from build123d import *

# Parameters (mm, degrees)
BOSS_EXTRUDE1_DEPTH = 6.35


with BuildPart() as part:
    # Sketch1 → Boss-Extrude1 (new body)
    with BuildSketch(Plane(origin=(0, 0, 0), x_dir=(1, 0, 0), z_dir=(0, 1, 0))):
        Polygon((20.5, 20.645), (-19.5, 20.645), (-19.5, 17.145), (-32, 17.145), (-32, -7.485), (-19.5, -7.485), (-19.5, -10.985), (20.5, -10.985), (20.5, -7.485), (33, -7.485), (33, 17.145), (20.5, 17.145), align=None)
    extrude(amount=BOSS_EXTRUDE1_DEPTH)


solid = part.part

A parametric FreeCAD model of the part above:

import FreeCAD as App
import Part
import Sketcher
from FreeCAD import Vector
Q = App.Units.Quantity

doc = App.newDocument("Part")
body = doc.addObject("PartDesign::Body", "Body")

# Sketch on XZ plane
sketch1 = body.newObject("Sketcher::SketchObject", "Sketch")
sketch1.AttachmentSupport = (doc.getObject("XZ_Plane"), [""])
sketch1.MapMode = "FlatFace"
sketch1.addGeometry(Part.LineSegment(Vector(20.5, -20.6, 0), Vector(-19.5, -20.6, 0)), False)
sketch1.addGeometry(Part.LineSegment(Vector(-19.5, -20.6, 0), Vector(-19.5, -17.1, 0)), False)
sketch1.addGeometry(Part.LineSegment(Vector(-19.5, -17.1, 0), Vector(-32, -17.1, 0)), False)
sketch1.addGeometry(Part.LineSegment(Vector(-32, -17.1, 0), Vector(-32, 7.5, 0)), False)
sketch1.addGeometry(Part.LineSegment(Vector(-32, 7.5, 0), Vector(-19.5, 7.5, 0)), False)
sketch1.addGeometry(Part.LineSegment(Vector(-19.5, 7.5, 0), Vector(-19.5, 11, 0)), False)
sketch1.addGeometry(Part.LineSegment(Vector(-19.5, 11, 0), Vector(20.5, 11, 0)), False)
sketch1.addGeometry(Part.LineSegment(Vector(20.5, 11, 0), Vector(20.5, 7.5, 0)), False)
sketch1.addGeometry(Part.LineSegment(Vector(20.5, 7.5, 0), Vector(33, 7.5, 0)), False)
sketch1.addGeometry(Part.LineSegment(Vector(33, 7.5, 0), Vector(33, -17.1, 0)), False)
sketch1.addGeometry(Part.LineSegment(Vector(33, -17.1, 0), Vector(20.5, -17.1, 0)), False)
sketch1.addGeometry(Part.LineSegment(Vector(20.5, -17.1, 0), Vector(20.5, -20.6, 0)), False)
sketch1.addConstraint(Sketcher.Constraint("Coincident", 0, 2, 1, 1))
sketch1.addConstraint(Sketcher.Constraint("Coincident", 1, 2, 2, 1))
sketch1.addConstraint(Sketcher.Constraint("Coincident", 2, 2, 3, 1))
sketch1.addConstraint(Sketcher.Constraint("Coincident", 3, 2, 4, 1))
sketch1.addConstraint(Sketcher.Constraint("Coincident", 4, 2, 5, 1))
sketch1.addConstraint(Sketcher.Constraint("Coincident", 5, 2, 6, 1))
sketch1.addConstraint(Sketcher.Constraint("Coincident", 6, 2, 7, 1))
sketch1.addConstraint(Sketcher.Constraint("Coincident", 7, 2, 8, 1))
sketch1.addConstraint(Sketcher.Constraint("Coincident", 8, 2, 9, 1))
sketch1.addConstraint(Sketcher.Constraint("Coincident", 9, 2, 10, 1))
sketch1.addConstraint(Sketcher.Constraint("Coincident", 10, 2, 11, 1))
sketch1.addConstraint(Sketcher.Constraint("Coincident", 11, 2, 0, 1))
sketch1.addConstraint(Sketcher.Constraint("Horizontal", 0))
sketch1.addConstraint(Sketcher.Constraint("Vertical", 1))
sketch1.addConstraint(Sketcher.Constraint("Horizontal", 2))
sketch1.addConstraint(Sketcher.Constraint("Vertical", 3))
sketch1.addConstraint(Sketcher.Constraint("Horizontal", 4))
sketch1.addConstraint(Sketcher.Constraint("Vertical", 5))
sketch1.addConstraint(Sketcher.Constraint("Horizontal", 6))
sketch1.addConstraint(Sketcher.Constraint("Vertical", 7))
sketch1.addConstraint(Sketcher.Constraint("Horizontal", 8))
sketch1.addConstraint(Sketcher.Constraint("Vertical", 9))
sketch1.addConstraint(Sketcher.Constraint("Horizontal", 10))
sketch1.addConstraint(Sketcher.Constraint("Vertical", 11))
sketch1.addConstraint(Sketcher.Constraint("Horizontal", 4, 2, 7, 2))
sketch1.addConstraint(Sketcher.Constraint("Horizontal", 2, 2, 9, 2))
sketch1.addConstraint(Sketcher.Constraint("Vertical", 1, 2, 4, 2))
sketch1.addConstraint(Sketcher.Constraint("Vertical", 7, 2, 10, 2))
sketch1.addConstraint(Sketcher.Constraint("Equal", 4, 8))
sketch1.addConstraint(Sketcher.Constraint("Equal", 1, 5))
sketch1.addConstraint(Sketcher.Constraint("DistanceX", 0, 2, 0, 1, Q("40 mm")))
sketch1.addConstraint(Sketcher.Constraint("DistanceX", 2, 2, 2, 1, Q("12.5 mm")))
sketch1.addConstraint(Sketcher.Constraint("DistanceY", 1, 1, 1, 2, Q("3.5 mm")))
sketch1.addConstraint(Sketcher.Constraint("DistanceX", 2, 2, -1, 1, Q("32 mm")))
sketch1.addConstraint(Sketcher.Constraint("DistanceY", 3, 1, 3, 2, Q("24.63 mm")))
sketch1.addConstraint(Sketcher.Constraint("DistanceY", 0, 2, -1, 1, Q("20.645 mm")))
pad1 = body.newObject("PartDesign::Pad", "Pad")
pad1.Profile = sketch1
pad1.Length = 6.35
pad1.Reversed = True

doc.recompute()
